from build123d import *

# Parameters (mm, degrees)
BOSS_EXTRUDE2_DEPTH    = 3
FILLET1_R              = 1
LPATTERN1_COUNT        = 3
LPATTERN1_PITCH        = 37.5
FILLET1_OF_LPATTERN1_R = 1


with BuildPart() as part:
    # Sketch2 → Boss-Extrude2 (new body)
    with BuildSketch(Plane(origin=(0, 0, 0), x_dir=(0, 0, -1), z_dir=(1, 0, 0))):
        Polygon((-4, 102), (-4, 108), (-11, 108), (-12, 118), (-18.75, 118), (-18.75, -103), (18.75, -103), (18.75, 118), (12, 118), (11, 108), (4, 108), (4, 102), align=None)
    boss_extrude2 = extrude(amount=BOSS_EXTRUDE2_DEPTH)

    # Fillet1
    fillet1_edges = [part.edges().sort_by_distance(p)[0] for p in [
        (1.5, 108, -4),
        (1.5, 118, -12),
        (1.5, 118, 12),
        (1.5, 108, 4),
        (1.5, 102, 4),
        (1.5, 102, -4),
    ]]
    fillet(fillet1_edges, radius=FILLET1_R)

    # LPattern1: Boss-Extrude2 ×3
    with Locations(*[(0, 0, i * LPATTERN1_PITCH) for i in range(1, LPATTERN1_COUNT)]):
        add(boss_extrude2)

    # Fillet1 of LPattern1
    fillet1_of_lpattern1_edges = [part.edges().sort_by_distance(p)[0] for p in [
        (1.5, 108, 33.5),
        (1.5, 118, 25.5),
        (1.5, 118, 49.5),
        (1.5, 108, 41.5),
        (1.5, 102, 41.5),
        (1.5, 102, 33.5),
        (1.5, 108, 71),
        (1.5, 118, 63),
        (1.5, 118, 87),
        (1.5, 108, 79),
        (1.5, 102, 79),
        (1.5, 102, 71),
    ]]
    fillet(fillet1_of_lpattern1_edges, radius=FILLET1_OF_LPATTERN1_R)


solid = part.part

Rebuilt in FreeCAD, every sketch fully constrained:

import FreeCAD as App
import Part
import Sketcher
from FreeCAD import Vector
Q = App.Units.Quantity


def edges_at(feature, points):
    """Names of the edges that pass closest to the given points."""
    edges = feature.Shape.Edges
    near = lambda p: min(range(len(edges)), key=lambda i: edges[i].distToShape(Part.Vertex(*p))[0])
    return sorted({f"Edge{near(p) + 1}" for p in points})


def add_polygon(sketch, points):
    """Adds a closed chain of lines whose ends are joined by coincident constraints."""
    first, n = sketch.GeometryCount, len(points)
    for a, b in zip(points, points[1:] + points[:1]):
        sketch.addGeometry(Part.LineSegment(App.Vector(*a, 0), App.Vector(*b, 0)), False)
    for i in range(n):
        sketch.addConstraint(Sketcher.Constraint("Coincident", first + i, 2, first + (i + 1) % n, 1))

doc = App.newDocument("Part")
params = doc.addObject("Spreadsheet::Sheet", "Params")
for row, (alias, value) in enumerate([
    ("sketch1_width", "6 mm"),
    ("sketch1_width2", "221 mm"),
    ("sketch1_height", "7 mm"),
    ("sketch1_height2", "8 mm"),
    ("sketch1_height3", "37.5 mm"),
    ("pad1_length", "3 mm"),
    ("fillet_radius", "1 mm"),
    ("linearpattern_pitch", "37.5 mm"),
    ("fillet2_radius", "1 mm"),
], start=1):
    params.set(f"A{row}", alias)
    params.set(f"B{row}", "=" + value)
    params.setAlias(f"B{row}", alias)

body = doc.addObject("PartDesign::Body", "Body")

# Sketch on YZ plane
sketch1 = body.newObject("Sketcher::SketchObject", "Sketch")
sketch1.AttachmentSupport = (doc.getObject("YZ_Plane"), [""])
sketch1.MapMode = "FlatFace"
add_polygon(sketch1, [(102, 4), (108, 4), (108, 11), (118, 12), (118, 19), (-103, 19), (-103, -19), (118, -19), (118, -12), (108, -11), (108, -4), (102, -4)])  # lines 0-11
sketch1.addConstraint(Sketcher.Constraint("Horizontal", 0))
sketch1.addConstraint(Sketcher.Constraint("Vertical", 1))
sketch1.addConstraint(Sketcher.Constraint("Vertical", 3))
sketch1.addConstraint(Sketcher.Constraint("Horizontal", 4))
sketch1.addConstraint(Sketcher.Constraint("Vertical", 5))
sketch1.addConstraint(Sketcher.Constraint("Horizontal", 6))
sketch1.addConstraint(Sketcher.Constraint("Vertical", 7))
sketch1.addConstraint(Sketcher.Constraint("Vertical", 9))
sketch1.addConstraint(Sketcher.Constraint("Horizontal", 10))
sketch1.addConstraint(Sketcher.Constraint("Vertical", 11))
sketch1.addConstraint(Sketcher.Constraint("Symmetric", 3, 2, 6, 2, -1))
sketch1.addConstraint(Sketcher.Constraint("Symmetric", 1, 2, 8, 2, -1))
sketch1.addConstraint(Sketcher.Constraint("Equal", 3, 7))
sketch1.addConstraint(Sketcher.Constraint("Equal", 1, 9))
sketch1.addConstraint(Sketcher.Constraint("DistanceX", 0, 1, 0, 2, Q("6 mm")))
sketch1.addConstraint(Sketcher.Constraint("DistanceX", 4, 2, 4, 1, Q("221 mm")))
sketch1.addConstraint(Sketcher.Constraint("DistanceY", 1, 1, 1, 2, Q("7 mm")))
sketch1.addConstraint(Sketcher.Constraint("DistanceY", 11, 1, 11, 2, Q("8 mm")))
sketch1.addConstraint(Sketcher.Constraint("DistanceY", 5, 2, 5, 1, Q("37.5 mm")))
sketch1.addConstraint(Sketcher.Constraint("DistanceX", -1, 1, 0, 2, Q("108 mm")))
sketch1.addConstraint(Sketcher.Constraint("DistanceX", -1, 1, 2, 2, Q("118 mm")))
sketch1.addConstraint(Sketcher.Constraint("DistanceY", -1, 1, 2, 2, Q("12 mm")))
sketch1.setExpression("Constraints[26]", "Params.sketch1_width")
sketch1.setExpression("Constraints[27]", "Params.sketch1_width2")
sketch1.setExpression("Constraints[28]", "Params.sketch1_height")
sketch1.setExpression("Constraints[29]", "Params.sketch1_height2")
sketch1.setExpression("Constraints[30]", "Params.sketch1_height3")
pad1 = body.newObject("PartDesign::Pad", "Pad")
pad1.Profile = sketch1
pad1.setExpression("Length", "Params.pad1_length")
doc.recompute()

fillet = body.newObject("PartDesign::Fillet", "Fillet")
fillet.Base = (pad1, edges_at(pad1, [
    (1.5, 108, -4),
    (1.5, 118, -12),
    (1.5, 118, 12),
    (1.5, 108, 4),
    (1.5, 102, 4),
    (1.5, 102, -4),
]))
fillet.setExpression("Radius", "Params.fillet_radius")
doc.recompute()

linearpattern = body.newObject("PartDesign::LinearPattern", "LinearPattern")
linearpattern.Originals = [pad1]
linearpattern.Direction = (doc.getObject("Z_Axis"), [""])
linearpattern.Mode = "offset"
linearpattern.setExpression("Offset", "Params.linearpattern_pitch")
linearpattern.Occurrences = 3
body.Tip = linearpattern
doc.recompute()

fillet2 = body.newObject("PartDesign::Fillet", "Fillet001")
fillet2.Base = (linearpattern, edges_at(linearpattern, [
    (1.5, 108, 33.5),
    (1.5, 118, 25.5),
    (1.5, 118, 49.5),
    (1.5, 108, 41.5),
    (1.5, 102, 41.5),
    (1.5, 102, 33.5),
    (1.5, 108, 71),
    (1.5, 118, 63),
    (1.5, 118, 87),
    (1.5, 108, 79),
    (1.5, 102, 79),
    (1.5, 102, 71),
]))
fillet2.setExpression("Radius", "Params.fillet2_radius")

doc.recompute()
